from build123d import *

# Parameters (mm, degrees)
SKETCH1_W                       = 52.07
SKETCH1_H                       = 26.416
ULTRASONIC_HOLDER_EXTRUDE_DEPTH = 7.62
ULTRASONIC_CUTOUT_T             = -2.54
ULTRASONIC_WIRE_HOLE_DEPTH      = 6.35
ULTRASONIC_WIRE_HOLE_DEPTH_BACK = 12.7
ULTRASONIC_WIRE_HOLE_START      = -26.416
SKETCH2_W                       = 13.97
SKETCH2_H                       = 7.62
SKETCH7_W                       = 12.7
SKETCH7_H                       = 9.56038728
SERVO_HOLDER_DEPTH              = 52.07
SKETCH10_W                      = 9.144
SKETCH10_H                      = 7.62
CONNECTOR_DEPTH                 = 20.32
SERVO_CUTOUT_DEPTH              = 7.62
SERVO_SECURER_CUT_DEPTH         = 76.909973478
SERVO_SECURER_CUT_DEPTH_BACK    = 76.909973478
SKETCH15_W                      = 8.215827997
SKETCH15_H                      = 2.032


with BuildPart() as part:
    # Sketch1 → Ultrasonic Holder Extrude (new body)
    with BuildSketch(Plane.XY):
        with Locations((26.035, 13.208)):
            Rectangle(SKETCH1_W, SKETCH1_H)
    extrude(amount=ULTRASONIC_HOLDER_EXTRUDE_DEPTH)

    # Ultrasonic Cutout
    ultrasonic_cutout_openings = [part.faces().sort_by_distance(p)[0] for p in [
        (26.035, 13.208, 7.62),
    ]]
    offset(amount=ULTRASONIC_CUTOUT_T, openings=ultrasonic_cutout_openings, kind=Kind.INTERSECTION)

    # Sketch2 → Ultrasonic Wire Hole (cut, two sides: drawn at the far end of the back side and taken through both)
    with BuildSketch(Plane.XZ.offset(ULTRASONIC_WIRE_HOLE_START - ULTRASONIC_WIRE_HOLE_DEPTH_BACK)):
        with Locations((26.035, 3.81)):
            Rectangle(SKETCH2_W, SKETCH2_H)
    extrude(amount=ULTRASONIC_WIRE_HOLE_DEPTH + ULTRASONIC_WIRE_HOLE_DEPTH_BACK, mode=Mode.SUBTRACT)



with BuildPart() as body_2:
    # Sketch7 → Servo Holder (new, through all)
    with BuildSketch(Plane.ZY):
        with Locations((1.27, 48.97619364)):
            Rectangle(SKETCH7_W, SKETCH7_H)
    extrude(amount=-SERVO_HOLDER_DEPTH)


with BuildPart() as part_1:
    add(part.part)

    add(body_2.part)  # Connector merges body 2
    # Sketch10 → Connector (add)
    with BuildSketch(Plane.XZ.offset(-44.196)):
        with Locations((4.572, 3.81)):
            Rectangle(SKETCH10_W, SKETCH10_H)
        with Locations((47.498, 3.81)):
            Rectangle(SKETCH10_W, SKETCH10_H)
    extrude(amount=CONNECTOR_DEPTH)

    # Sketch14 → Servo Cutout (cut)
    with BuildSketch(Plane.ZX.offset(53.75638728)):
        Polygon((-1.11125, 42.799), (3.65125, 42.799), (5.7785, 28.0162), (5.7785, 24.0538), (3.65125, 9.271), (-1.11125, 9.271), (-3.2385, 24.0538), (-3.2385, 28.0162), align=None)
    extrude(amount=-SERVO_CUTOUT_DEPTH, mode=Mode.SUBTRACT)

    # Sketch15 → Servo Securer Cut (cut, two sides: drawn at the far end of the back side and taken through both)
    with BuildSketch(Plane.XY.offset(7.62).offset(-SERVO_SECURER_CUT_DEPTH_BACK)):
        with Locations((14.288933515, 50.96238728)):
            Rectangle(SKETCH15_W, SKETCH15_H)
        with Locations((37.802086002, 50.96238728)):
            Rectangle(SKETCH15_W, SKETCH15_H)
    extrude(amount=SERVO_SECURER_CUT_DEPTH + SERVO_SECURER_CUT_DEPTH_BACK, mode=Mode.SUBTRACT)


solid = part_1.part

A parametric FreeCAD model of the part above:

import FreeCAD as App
import Part
import Sketcher

V = App.Vector
Q = App.Units.Quantity


def faces_at(feature, points):
    """Names of the faces that lie closest to the given points."""
    faces = feature.Shape.Faces
    near = lambda p: min(range(len(faces)), key=lambda i: faces[i].distToShape(Part.Vertex(*p))[0])
    return sorted({f"Face{near(p) + 1}" for p in points})

doc = App.newDocument("Part")
body = doc.addObject("PartDesign::Body", "Body")

sketch1 = body.newObject("Sketcher::SketchObject", "Sketch")
sketch1.AttachmentSupport = (doc.getObject("XY_Plane"), [""])
sketch1.MapMode = "FlatFace"
sketch1.addGeometry(Part.LineSegment(V(0, 26, 0), V(0, 0, 0)), False)
sketch1.addGeometry(Part.LineSegment(V(0, 0, 0), V(52, 0, 0)), False)
sketch1.addGeometry(Part.LineSegment(V(52, 0, 0), V(52, 26, 0)), False)
sketch1.addGeometry(Part.LineSegment(V(52, 26, 0), V(0, 26, 0)), False)
sketch1.addConstraint(Sketcher.Constraint("Coincident", 0, 2, 1, 1))
sketch1.addConstraint(Sketcher.Constraint("Coincident", 1, 2, 2, 1))
sketch1.addConstraint(Sketcher.Constraint("Coincident", 2, 2, 3, 1))
sketch1.addConstraint(Sketcher.Constraint("Coincident", 3, 2, 0, 1))
sketch1.addConstraint(Sketcher.Constraint("Vertical", 0))
sketch1.addConstraint(Sketcher.Constraint("Horizontal", 1))
sketch1.addConstraint(Sketcher.Constraint("Vertical", 2))
sketch1.addConstraint(Sketcher.Constraint("Horizontal", 3))
sketch1.addConstraint(Sketcher.Constraint("Coincident", 0, 2, -1, 1))
sketch1.addConstraint(Sketcher.Constraint("DistanceX", 1, 1, 1, 2, Q("2.05 in")))
sketch1.addConstraint(Sketcher.Constraint("DistanceY", 0, 2, 0, 1, Q("1.04 in")))
pad1 = body.newObject("PartDesign::Pad", "Pad")
pad1.Profile = sketch1
pad1.Length = Q("0.3 in")
doc.recompute()

thickness = body.newObject("PartDesign::Thickness", "Thickness")
thickness.Base = (pad1, faces_at(pad1, [(26.035, 13.208, 7.62)]))
thickness.Value = Q("0.1 in")
thickness.Reversed = True
thickness.Join = "Intersection"

sketch2 = body.newObject("Sketcher::SketchObject", "Sketch001")
sketch2.AttachmentSupport = (doc.getObject("XZ_Plane"), [""])
sketch2.MapMode = "FlatFace"
sketch2.AttachmentOffset = App.Placement(V(0, 0, -1.04 * 25.4), App.Rotation())
sketch2.addGeometry(Part.LineSegment(V(19, 8, 0), V(19, 0, 0)), False)
sketch2.addGeometry(Part.LineSegment(V(19, 0, 0), V(33, 0, 0)), False)
sketch2.addGeometry(Part.LineSegment(V(33, 0, 0), V(33, 8, 0)), False)
sketch2.addGeometry(Part.LineSegment(V(33, 8, 0), V(19, 8, 0)), False)
sketch2.addConstraint(Sketcher.Constraint("Coincident", 0, 2, 1, 1))
sketch2.addConstraint(Sketcher.Constraint("Coincident", 1, 2, 2, 1))
sketch2.addConstraint(Sketcher.Constraint("Coincident", 2, 2, 3, 1))
sketch2.addConstraint(Sketcher.Constraint("Coincident", 3, 2, 0, 1))
sketch2.addConstraint(Sketcher.Constraint("Vertical", 0))
sketch2.addConstraint(Sketcher.Constraint("Horizontal", 1))
sketch2.addConstraint(Sketcher.Constraint("Vertical", 2))
sketch2.addConstraint(Sketcher.Constraint("Horizontal", 3))
sketch2.addConstraint(Sketcher.Constraint("PointOnObject", 0, 2, -1))
sketch2.addConstraint(Sketcher.Constraint("DistanceY", 0, 2, 0, 1, Q("0.3 in")))
sketch2.addConstraint(Sketcher.Constraint("DistanceX", 1, 1, 1, 2, Q("0.55 in")))
sketch2.addConstraint(Sketcher.Constraint("DistanceX", -1, 1, 1, 2, Q("1.3 in")))
pocket1 = body.newObject("PartDesign::Pocket", "Pocket")
pocket1.Profile = sketch2
pocket1.Type = "TwoLengths"
pocket1.Length = Q("0.25 in")
pocket1.Length2 = Q("0.5 in")
pocket1.Reversed = True
body2 = doc.addObject("PartDesign::Body", "Body001")

sketch3 = body2.newObject("Sketcher::SketchObject", "Sketch002")
sketch3.AttachmentSupport = (doc.getObject("YZ_Plane001"), [""])
sketch3.MapMode = "FlatFace"
sketch3.addGeometry(Part.LineSegment(V(54, -5, 0), V(44, -5, 0)), False)
sketch3.addGeometry(Part.LineSegment(V(44, -5, 0), V(44, 8, 0)), False)
sketch3.addGeometry(Part.LineSegment(V(44, 8, 0), V(54, 8, 0)), False)
sketch3.addGeometry(Part.LineSegment(V(54, 8, 0), V(54, -5, 0)), False)
sketch3.addConstraint(Sketcher.Constraint("Coincident", 0, 2, 1, 1))
sketch3.addConstraint(Sketcher.Constraint("Coincident", 1, 2, 2, 1))
sketch3.addConstraint(Sketcher.Constraint("Coincident", 2, 2, 3, 1))
sketch3.addConstraint(Sketcher.Constraint("Coincident", 3, 2, 0, 1))
sketch3.addConstraint(Sketcher.Constraint("Horizontal", 0))
sketch3.addConstraint(Sketcher.Constraint("Vertical", 1))
sketch3.addConstraint(Sketcher.Constraint("Horizontal", 2))
sketch3.addConstraint(Sketcher.Constraint("Vertical", 3))
sketch3.addConstraint(Sketcher.Constraint("DistanceY", 1, 1, 1, 2, Q("0.5 in")))
sketch3.addConstraint(Sketcher.Constraint("DistanceY", 0, 2, -1, 1, Q("0.2 in")))
sketch3.addConstraint(Sketcher.Constraint("DistanceX", -1, 1, 0, 2, Q("1.74 in")))
sketch3.addConstraint(Sketcher.Constraint("DistanceX", 0, 2, 0, 1, 9.560387))
pad2 = body2.newObject("PartDesign::Pad", "Pad001")
pad2.Profile = sketch3
pad2.Length = Q("2.05 in")
body.AllowCompound = True
doc.recompute()

boolean = body.newObject("PartDesign::Boolean", "Boolean")
boolean.Type = "Fuse"
boolean.addObjects([body2])

sketch4 = body.newObject("Sketcher::SketchObject", "Sketch003")
sketch4.AttachmentSupport = (doc.getObject("XZ_Plane"), [""])
sketch4.MapMode = "FlatFace"
sketch4.AttachmentOffset = App.Placement(V(0, 0, -1.74 * 25.4), App.Rotation())
sketch4.addGeometry(Part.LineSegment(V(0, 8, 0), V(0, 0, 0)), False)
sketch4.addGeometry(Part.LineSegment(V(0, 0, 0), V(9, 0, 0)), False)
sketch4.addGeometry(Part.LineSegment(V(9, 0, 0), V(9, 8, 0)), False)
sketch4.addGeometry(Part.LineSegment(V(9, 8, 0), V(0, 8, 0)), False)
sketch4.addGeometry(Part.LineSegment(V(43, 8, 0), V(43, 0, 0)), False)
sketch4.addGeometry(Part.LineSegment(V(43, 0, 0), V(52, 0, 0)), False)
sketch4.addGeometry(Part.LineSegment(V(52, 0, 0), V(52, 8, 0)), False)
sketch4.addGeometry(Part.LineSegment(V(52, 8, 0), V(43, 8, 0)), False)
sketch4.addConstraint(Sketcher.Constraint("Coincident", 0, 2, 1, 1))
sketch4.addConstraint(Sketcher.Constraint("Coincident", 1, 2, 2, 1))
sketch4.addConstraint(Sketcher.Constraint("Coincident", 2, 2, 3, 1))
sketch4.addConstraint(Sketcher.Constraint("Coincident", 3, 2, 0, 1))
sketch4.addConstraint(Sketcher.Constraint("Coincident", 4, 2, 5, 1))
sketch4.addConstraint(Sketcher.Constraint("Coincident", 5, 2, 6, 1))
sketch4.addConstraint(Sketcher.Constraint("Coincident", 6, 2, 7, 1))
sketch4.addConstraint(Sketcher.Constraint("Coincident", 7, 2, 4, 1))
sketch4.addConstraint(Sketcher.Constraint("Vertical", 0))
sketch4.addConstraint(Sketcher.Constraint("Horizontal", 1))
sketch4.addConstraint(Sketcher.Constraint("Vertical", 2))
sketch4.addConstraint(Sketcher.Constraint("Horizontal", 3))
sketch4.addConstraint(Sketcher.Constraint("Vertical", 4))
sketch4.addConstraint(Sketcher.Constraint("Horizontal", 5))
sketch4.addConstraint(Sketcher.Constraint("Vertical", 6))
sketch4.addConstraint(Sketcher.Constraint("Horizontal", 7))
sketch4.addConstraint(Sketcher.Constraint("Coincident", 0, 2, -1, 1))
sketch4.addConstraint(Sketcher.Constraint("PointOnObject", 4, 2, -1))
sketch4.addConstraint(Sketcher.Constraint("Horizontal", 3, 2, 6, 2))
sketch4.addConstraint(Sketcher.Constraint("Equal", 3, 5))
sketch4.addConstraint(Sketcher.Constraint("DistanceY", 0, 2, 0, 1, Q("0.3 in")))
sketch4.addConstraint(Sketcher.Constraint("DistanceX", 1, 1, 1, 2, Q("0.36 in")))
sketch4.addConstraint(Sketcher.Constraint("DistanceX", -1, 1, 4, 2, Q("1.69 in")))
pad3 = body.newObject("PartDesign::Pad", "Pad002")
pad3.Profile = sketch4
pad3.Length = Q("0.8 in")

sketch5 = body.newObject("Sketcher::SketchObject", "Sketch004")
sketch5.AttachmentSupport = (doc.getObject("XZ_Plane"), [""])
sketch5.MapMode = "FlatFace"
sketch5.AttachmentOffset = App.Placement(V(0, 0, -53.756387), App.Rotation())
sketch5.addGeometry(Part.LineSegment(V(42.8, 3.7, 0), V(42.8, -1.1, 0)), False)
sketch5.addGeometry(Part.LineSegment(V(42.8, -1.1, 0), V(28, -3.2, 0)), False)
sketch5.addGeometry(Part.LineSegment(V(28, -3.2, 0), V(24.1, -3.2, 0)), False)
sketch5.addGeometry(Part.LineSegment(V(24.1, -3.2, 0), V(9.3, -1.1, 0)), False)
sketch5.addGeometry(Part.LineSegment(V(9.3, -1.1, 0), V(9.3, 3.7, 0)), False)
sketch5.addGeometry(Part.LineSegment(V(9.3, 3.7, 0), V(24.1, 5.8, 0)), False)
sketch5.addGeometry(Part.LineSegment(V(24.1, 5.8, 0), V(28, 5.8, 0)), False)
sketch5.addGeometry(Part.LineSegment(V(28, 5.8, 0), V(42.8, 3.7, 0)), False)
sketch5.addConstraint(Sketcher.Constraint("Coincident", 0, 2, 1, 1))
sketch5.addConstraint(Sketcher.Constraint("Coincident", 1, 2, 2, 1))
sketch5.addConstraint(Sketcher.Constraint("Coincident", 2, 2, 3, 1))
sketch5.addConstraint(Sketcher.Constraint("Coincident", 3, 2, 4, 1))
sketch5.addConstraint(Sketcher.Constraint("Coincident", 4, 2, 5, 1))
sketch5.addConstraint(Sketcher.Constraint("Coincident", 5, 2, 6, 1))
sketch5.addConstraint(Sketcher.Constraint("Coincident", 6, 2, 7, 1))
sketch5.addConstraint(Sketcher.Constraint("Coincident", 7, 2, 0, 1))
sketch5.addConstraint(Sketcher.Constraint("Vertical", 0))
sketch5.addConstraint(Sketcher.Constraint("Horizontal", 2))
sketch5.addConstraint(Sketcher.Constraint("Vertical", 4))
sketch5.addConstraint(Sketcher.Constraint("Horizontal", 6))
sketch5.addConstraint(Sketcher.Constraint("Parallel", 1, 5))
sketch5.addConstraint(Sketcher.Constraint("Parallel", 3, 7))
sketch5.addConstraint(Sketcher.Constraint("Horizontal", 0, 2, 3, 2))
sketch5.addConstraint(Sketcher.Constraint("Horizontal", 4, 2, 7, 2))
sketch5.addConstraint(Sketcher.Constraint("Vertical", 2, 2, 5, 2))
sketch5.addConstraint(Sketcher.Constraint("Vertical", 1, 2, 6, 2))
sketch5.addConstraint(Sketcher.Constraint("DistanceX", 2, 2, 2, 1, Q("0.156 in")))
sketch5.addConstraint(Sketcher.Constraint("DistanceY", 0, 2, 0, 1, Q("0.1875 in")))
sketch5.addConstraint(Sketcher.Constraint("DistanceX", 3, 2, 0, 2, Q("1.32 in")))
sketch5.addConstraint(Sketcher.Constraint("DistanceX", -1, 1, 0, 2, Q("1.685 in")))
sketch5.addConstraint(Sketcher.Constraint("DistanceY", 2, 2, 5, 2, Q("0.355 in")))
sketch5.addConstraint(Sketcher.Constraint("DistanceY", 1, 2, -1, 1, Q("0.1275 in")))
pocket2 = body.newObject("PartDesign::Pocket", "Pocket001")
pocket2.Profile = sketch5
pocket2.Length = Q("0.3 in")
pocket2.Reversed = True

sketch6 = body.newObject("Sketcher::SketchObject", "Sketch005")
sketch6.AttachmentSupport = (doc.getObject("XY_Plane"), [""])
sketch6.MapMode = "FlatFace"
sketch6.AttachmentOffset = App.Placement(V(0, 0, 0.3 * 25.4), App.Rotation())
sketch6.addGeometry(Part.LineSegment(V(10.2, 52, 0), V(10.2, 49.9, 0)), False)
sketch6.addGeometry(Part.LineSegment(V(10.2, 49.9, 0), V(18.4, 49.9, 0)), False)
sketch6.addGeometry(Part.LineSegment(V(18.4, 49.9, 0), V(18.4, 52, 0)), False)
sketch6.addGeometry(Part.LineSegment(V(18.4, 52, 0), V(10.2, 52, 0)), False)
sketch6.addGeometry(Part.LineSegment(V(33.7, 52, 0), V(33.7, 49.9, 0)), False)
sketch6.addGeometry(Part.LineSegment(V(33.7, 49.9, 0), V(41.9, 49.9, 0)), False)
sketch6.addGeometry(Part.LineSegment(V(41.9, 49.9, 0), V(41.9, 52, 0)), False)
sketch6.addGeometry(Part.LineSegment(V(41.9, 52, 0), V(33.7, 52, 0)), False)
sketch6.addConstraint(Sketcher.Constraint("Coincident", 0, 2, 1, 1))
sketch6.addConstraint(Sketcher.Constraint("Coincident", 1, 2, 2, 1))
sketch6.addConstraint(Sketcher.Constraint("Coincident", 2, 2, 3, 1))
sketch6.addConstraint(Sketcher.Constraint("Coincident", 3, 2, 0, 1))
sketch6.addConstraint(Sketcher.Constraint("Coincident", 4, 2, 5, 1))
sketch6.addConstraint(Sketcher.Constraint("Coincident", 5, 2, 6, 1))
sketch6.addConstraint(Sketcher.Constraint("Coincident", 6, 2, 7, 1))
sketch6.addConstraint(Sketcher.Constraint("Coincident", 7, 2, 4, 1))
sketch6.addConstraint(Sketcher.Constraint("Vertical", 0))
sketch6.addConstraint(Sketcher.Constraint("Horizontal", 1))
sketch6.addConstraint(Sketcher.Constraint("Vertical", 2))
sketch6.addConstraint(Sketcher.Constraint("Horizontal", 3))
sketch6.addConstraint(Sketcher.Constraint("Vertical", 4))
sketch6.addConstraint(Sketcher.Constraint("Horizontal", 5))
sketch6.addConstraint(Sketcher.Constraint("Vertical", 6))
sketch6.addConstraint(Sketcher.Constraint("Horizontal", 7))
sketch6.addConstraint(Sketcher.Constraint("Horizontal", 1, 2, 4, 2))
sketch6.addConstraint(Sketcher.Constraint("Horizontal", 3, 2, 6, 2))
sketch6.addConstraint(Sketcher.Constraint("Equal", 3, 5))
sketch6.addConstraint(Sketcher.Constraint("DistanceY", 0, 2, 0, 1, Q("0.08 in")))
sketch6.addConstraint(Sketcher.Constraint("DistanceX", -1, 1, 5, 2, Q("1.65 in")))
sketch6.addConstraint(Sketcher.Constraint("DistanceX", 1, 1, 1, 2, 8.215828))
sketch6.addConstraint(Sketcher.Constraint("DistanceX", -1, 1, 0, 2, 10.18102))
sketch6.addConstraint(Sketcher.Constraint("DistanceY", -1, 1, 0, 2, 49.946387))
pocket3 = body.newObject("PartDesign::Pocket", "Pocket002")
pocket3.Profile = sketch6
pocket3.Type = "ThroughAll"
pocket3.Midplane = True

doc.recompute()
